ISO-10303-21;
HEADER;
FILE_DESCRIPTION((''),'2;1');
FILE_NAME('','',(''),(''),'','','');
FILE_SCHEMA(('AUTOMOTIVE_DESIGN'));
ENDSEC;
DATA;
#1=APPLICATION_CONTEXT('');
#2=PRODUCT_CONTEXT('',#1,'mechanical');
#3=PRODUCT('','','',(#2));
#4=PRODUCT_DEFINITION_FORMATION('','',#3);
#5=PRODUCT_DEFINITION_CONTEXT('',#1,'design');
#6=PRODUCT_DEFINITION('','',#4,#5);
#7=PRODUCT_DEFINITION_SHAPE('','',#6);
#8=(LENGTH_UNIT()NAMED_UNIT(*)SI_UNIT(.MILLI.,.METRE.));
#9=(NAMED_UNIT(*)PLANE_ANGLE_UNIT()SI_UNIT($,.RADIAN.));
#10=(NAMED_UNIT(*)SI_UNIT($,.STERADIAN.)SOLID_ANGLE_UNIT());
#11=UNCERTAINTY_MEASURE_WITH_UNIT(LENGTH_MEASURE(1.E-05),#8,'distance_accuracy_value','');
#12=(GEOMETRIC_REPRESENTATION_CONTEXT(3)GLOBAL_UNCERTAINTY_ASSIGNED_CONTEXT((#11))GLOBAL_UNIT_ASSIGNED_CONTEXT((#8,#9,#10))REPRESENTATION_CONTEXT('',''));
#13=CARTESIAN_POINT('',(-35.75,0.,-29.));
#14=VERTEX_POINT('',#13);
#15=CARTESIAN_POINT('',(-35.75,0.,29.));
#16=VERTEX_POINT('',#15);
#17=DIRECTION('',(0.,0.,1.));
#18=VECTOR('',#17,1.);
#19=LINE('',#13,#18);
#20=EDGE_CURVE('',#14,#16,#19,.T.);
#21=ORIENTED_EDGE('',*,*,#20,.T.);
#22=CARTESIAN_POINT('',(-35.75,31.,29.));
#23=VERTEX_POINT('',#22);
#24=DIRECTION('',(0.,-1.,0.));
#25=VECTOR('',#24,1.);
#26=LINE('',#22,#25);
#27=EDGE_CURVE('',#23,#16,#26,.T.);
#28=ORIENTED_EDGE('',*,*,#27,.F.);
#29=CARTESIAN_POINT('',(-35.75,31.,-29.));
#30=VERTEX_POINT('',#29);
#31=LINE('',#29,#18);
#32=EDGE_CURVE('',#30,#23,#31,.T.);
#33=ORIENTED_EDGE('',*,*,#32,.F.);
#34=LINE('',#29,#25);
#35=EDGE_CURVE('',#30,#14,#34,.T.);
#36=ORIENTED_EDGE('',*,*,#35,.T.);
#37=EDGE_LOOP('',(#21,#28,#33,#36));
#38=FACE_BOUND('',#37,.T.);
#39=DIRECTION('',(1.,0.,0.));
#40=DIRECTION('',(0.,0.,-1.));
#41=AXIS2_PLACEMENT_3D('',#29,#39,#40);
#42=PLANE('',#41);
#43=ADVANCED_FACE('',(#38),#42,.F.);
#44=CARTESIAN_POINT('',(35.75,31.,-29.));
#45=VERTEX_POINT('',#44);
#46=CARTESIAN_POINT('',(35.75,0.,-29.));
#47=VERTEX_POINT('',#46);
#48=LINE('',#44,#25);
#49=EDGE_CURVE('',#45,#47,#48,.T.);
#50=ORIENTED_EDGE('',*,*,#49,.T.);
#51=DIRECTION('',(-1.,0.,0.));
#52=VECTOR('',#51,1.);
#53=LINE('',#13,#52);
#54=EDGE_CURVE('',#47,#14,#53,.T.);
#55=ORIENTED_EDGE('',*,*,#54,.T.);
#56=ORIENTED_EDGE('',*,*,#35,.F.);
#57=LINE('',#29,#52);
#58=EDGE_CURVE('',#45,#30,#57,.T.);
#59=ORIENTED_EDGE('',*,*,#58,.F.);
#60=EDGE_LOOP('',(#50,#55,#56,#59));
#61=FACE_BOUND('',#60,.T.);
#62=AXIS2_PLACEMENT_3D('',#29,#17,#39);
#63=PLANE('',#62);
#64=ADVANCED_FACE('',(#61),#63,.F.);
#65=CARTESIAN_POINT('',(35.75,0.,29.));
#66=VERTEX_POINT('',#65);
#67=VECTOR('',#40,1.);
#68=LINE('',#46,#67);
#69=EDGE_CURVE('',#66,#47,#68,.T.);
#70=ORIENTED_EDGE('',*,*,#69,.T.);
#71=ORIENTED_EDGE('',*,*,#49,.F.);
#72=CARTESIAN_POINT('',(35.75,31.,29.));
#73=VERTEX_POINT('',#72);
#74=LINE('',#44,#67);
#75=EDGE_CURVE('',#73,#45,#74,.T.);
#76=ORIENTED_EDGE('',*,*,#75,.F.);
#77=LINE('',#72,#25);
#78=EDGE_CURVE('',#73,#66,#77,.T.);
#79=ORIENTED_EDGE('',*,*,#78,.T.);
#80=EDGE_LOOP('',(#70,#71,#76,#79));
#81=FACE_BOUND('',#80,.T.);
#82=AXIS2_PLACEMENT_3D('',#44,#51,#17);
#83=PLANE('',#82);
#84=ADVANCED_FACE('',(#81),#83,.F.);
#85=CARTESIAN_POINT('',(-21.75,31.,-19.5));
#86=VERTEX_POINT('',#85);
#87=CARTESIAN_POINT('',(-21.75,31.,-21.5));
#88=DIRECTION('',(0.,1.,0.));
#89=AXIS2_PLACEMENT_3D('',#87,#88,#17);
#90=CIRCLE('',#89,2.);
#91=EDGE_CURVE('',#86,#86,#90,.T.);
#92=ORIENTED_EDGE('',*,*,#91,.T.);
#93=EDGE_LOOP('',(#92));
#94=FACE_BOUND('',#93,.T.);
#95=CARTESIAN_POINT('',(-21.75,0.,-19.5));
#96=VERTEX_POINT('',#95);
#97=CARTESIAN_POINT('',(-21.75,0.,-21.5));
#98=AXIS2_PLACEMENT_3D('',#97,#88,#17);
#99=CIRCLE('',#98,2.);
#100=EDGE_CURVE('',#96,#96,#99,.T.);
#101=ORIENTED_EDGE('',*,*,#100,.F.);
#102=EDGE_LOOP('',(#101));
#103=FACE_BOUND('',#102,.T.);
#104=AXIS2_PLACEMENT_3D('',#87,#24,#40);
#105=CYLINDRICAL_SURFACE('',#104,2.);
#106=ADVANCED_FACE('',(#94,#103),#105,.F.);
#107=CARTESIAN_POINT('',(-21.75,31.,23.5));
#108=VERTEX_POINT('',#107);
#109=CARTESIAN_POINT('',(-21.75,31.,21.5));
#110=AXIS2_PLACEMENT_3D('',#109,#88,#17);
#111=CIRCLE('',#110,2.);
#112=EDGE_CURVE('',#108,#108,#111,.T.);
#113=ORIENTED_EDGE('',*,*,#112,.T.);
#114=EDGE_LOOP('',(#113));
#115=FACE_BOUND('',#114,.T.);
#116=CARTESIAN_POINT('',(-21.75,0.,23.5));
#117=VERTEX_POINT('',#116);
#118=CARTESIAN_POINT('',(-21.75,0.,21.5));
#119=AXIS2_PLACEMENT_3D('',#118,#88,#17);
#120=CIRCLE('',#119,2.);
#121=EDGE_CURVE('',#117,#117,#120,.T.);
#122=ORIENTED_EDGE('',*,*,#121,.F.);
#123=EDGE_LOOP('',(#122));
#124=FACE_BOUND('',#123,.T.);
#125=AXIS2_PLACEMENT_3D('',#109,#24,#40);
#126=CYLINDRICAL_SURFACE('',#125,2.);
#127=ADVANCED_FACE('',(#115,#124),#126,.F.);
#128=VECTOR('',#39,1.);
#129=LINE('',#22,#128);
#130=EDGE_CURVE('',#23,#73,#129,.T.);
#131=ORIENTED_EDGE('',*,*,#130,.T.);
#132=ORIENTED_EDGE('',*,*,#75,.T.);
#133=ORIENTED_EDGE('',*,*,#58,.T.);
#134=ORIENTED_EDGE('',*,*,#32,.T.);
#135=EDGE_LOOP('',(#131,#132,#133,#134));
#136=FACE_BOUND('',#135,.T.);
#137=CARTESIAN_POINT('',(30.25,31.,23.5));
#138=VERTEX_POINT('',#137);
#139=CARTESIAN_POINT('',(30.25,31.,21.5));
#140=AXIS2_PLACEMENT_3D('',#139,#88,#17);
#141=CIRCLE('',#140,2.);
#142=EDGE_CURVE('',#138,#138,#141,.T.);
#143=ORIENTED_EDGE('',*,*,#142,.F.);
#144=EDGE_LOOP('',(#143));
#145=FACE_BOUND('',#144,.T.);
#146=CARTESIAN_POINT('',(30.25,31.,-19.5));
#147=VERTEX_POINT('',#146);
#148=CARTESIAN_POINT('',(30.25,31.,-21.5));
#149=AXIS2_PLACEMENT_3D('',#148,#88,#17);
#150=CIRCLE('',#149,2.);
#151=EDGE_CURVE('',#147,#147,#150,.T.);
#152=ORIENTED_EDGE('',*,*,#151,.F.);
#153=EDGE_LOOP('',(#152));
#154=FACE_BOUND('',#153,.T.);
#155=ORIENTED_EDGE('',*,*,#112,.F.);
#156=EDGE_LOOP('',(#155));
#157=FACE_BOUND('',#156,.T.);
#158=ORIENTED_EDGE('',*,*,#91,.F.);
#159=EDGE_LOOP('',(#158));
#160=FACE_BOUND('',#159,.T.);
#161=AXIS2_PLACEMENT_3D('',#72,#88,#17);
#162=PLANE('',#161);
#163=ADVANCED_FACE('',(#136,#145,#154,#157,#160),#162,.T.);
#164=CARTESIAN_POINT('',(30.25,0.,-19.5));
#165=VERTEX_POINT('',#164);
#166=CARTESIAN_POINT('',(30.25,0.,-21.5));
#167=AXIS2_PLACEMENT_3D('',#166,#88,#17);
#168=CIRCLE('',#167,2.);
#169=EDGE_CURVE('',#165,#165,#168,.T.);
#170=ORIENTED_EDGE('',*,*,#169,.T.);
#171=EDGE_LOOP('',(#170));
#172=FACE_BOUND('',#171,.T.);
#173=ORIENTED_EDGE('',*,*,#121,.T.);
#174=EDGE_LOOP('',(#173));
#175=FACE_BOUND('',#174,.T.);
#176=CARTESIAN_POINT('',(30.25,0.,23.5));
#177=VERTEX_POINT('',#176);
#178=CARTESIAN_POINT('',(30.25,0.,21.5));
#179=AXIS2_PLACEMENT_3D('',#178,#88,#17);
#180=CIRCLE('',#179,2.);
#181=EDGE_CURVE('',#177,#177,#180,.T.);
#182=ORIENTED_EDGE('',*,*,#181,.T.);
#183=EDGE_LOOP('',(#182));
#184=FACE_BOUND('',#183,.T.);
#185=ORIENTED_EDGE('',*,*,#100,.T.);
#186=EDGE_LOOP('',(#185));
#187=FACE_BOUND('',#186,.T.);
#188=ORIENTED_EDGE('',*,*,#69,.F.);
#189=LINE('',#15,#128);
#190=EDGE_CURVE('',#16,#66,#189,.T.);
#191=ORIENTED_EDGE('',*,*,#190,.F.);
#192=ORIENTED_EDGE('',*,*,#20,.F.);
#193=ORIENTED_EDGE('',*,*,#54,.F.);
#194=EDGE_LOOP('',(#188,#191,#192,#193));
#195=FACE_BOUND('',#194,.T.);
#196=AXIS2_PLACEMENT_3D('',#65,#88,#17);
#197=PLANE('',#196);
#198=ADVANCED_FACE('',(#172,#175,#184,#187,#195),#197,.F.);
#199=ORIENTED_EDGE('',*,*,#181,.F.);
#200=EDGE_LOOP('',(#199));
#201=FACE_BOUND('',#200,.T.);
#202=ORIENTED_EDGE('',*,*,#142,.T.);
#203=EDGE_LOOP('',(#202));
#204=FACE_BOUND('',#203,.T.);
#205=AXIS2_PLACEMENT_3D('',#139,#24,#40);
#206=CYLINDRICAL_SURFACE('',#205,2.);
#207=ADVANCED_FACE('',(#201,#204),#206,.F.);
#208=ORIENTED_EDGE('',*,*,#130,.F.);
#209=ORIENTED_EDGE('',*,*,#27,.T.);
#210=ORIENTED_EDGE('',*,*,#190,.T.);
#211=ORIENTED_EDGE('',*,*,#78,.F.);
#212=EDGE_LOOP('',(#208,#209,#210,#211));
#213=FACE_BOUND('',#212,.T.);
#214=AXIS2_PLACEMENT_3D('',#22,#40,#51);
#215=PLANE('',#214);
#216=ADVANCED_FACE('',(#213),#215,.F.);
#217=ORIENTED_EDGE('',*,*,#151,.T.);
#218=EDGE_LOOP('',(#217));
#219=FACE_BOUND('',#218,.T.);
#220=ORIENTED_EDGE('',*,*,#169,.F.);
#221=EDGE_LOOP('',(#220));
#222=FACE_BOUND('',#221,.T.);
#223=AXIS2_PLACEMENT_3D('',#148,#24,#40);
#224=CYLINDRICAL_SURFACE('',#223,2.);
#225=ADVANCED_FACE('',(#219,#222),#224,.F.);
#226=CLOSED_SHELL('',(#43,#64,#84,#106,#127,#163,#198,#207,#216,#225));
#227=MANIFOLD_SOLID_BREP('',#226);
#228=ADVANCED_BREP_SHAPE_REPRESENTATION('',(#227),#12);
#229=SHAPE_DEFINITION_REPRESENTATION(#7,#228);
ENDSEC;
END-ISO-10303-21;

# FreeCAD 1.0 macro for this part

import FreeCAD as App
import Part
import Sketcher
Q = App.Units.Quantity


def add_polygon(sketch, points):
    """Adds a closed chain of lines whose ends are joined by coincident constraints."""
    first, n = sketch.GeometryCount, len(points)
    for a, b in zip(points, points[1:] + points[:1]):
        sketch.addGeometry(Part.LineSegment(App.Vector(*a, 0), App.Vector(*b, 0)), False)
    for i in range(n):
        sketch.addConstraint(Sketcher.Constraint("Coincident", first + i, 2, first + (i + 1) % n, 1))

doc = App.newDocument("Part")
params = doc.addObject("Spreadsheet::Sheet", "Params")
for row, (alias, value) in enumerate([
    ("sketch1_diameter", "4 mm"),
    ("sketch1_height", "58 mm"),
    ("sketch1_width", "71.5 mm"),
    ("pad1_length", "31 mm"),
], start=1):
    params.set(f"A{row}", alias)
    params.set(f"B{row}", "=" + value)
    params.setAlias(f"B{row}", alias)

body = doc.addObject("PartDesign::Body", "Body")

# Sketch on XZ plane
sketch1 = doc.addObject("Sketcher::SketchObject", "Sketch")
body.addObject(sketch1)
sketch1.AttachmentSupport = (doc.XZ_Plane, [""])
sketch1.MapMode = "FlatFace"
add_polygon(sketch1, [(-35.8, -29), (-35.8, 29), (35.8, 29), (35.8, -29)])  # lines 0-3
sketch1.addGeometry(Part.Circle(App.Vector(-21.8, 21.5, 0), App.Vector(0, 0, 1), 2), False)  # 4
sketch1.addGeometry(Part.Circle(App.Vector(30.2, 21.5, 0), App.Vector(0, 0, 1), 2), False)  # 5
sketch1.addGeometry(Part.Circle(App.Vector(-21.8, -21.5, 0), App.Vector(0, 0, 1), 2), False)  # 6
sketch1.addGeometry(Part.Circle(App.Vector(30.2, -21.5, 0), App.Vector(0, 0, 1), 2), False)  # 7
sketch1.addConstraint([
    Sketcher.Constraint("Vertical", 0),
    Sketcher.Constraint("Horizontal", 1),
    Sketcher.Constraint("Vertical", 2),
    Sketcher.Constraint("Horizontal", 3),
    Sketcher.Constraint("Equal", 4, 5),
    Sketcher.Constraint("Equal", 5, 6),
    Sketcher.Constraint("Equal", 6, 7),
    Sketcher.Constraint("Symmetric", 0, 2, 2, 2, -1, 1),
    Sketcher.Constraint("Symmetric", 4, 3, 6, 3, -1),
    Sketcher.Constraint("Symmetric", 5, 3, 7, 3, -1),
    Sketcher.Constraint("Horizontal", 4, 3, 5, 3),
    Sketcher.Constraint("Diameter", 4, Q("4 mm")),
    Sketcher.Constraint("DistanceY", 0, 1, 0, 2, Q("58 mm")),
    Sketcher.Constraint("DistanceX", 1, 1, 1, 2, Q("71.5 mm")),
    Sketcher.Constraint("DistanceX", 4, 3, 5, 3, Q("52 mm")),
    Sketcher.Constraint("DistanceY", 6, 3, 4, 3, Q("43 mm")),
    Sketcher.Constraint("DistanceX", 0, 2, 4, 3, Q("14 mm")),
])
sketch1.setExpression("Constraints[15]", "Params.sketch1_diameter")
sketch1.setExpression("Constraints[16]", "Params.sketch1_height")
sketch1.setExpression("Constraints[17]", "Params.sketch1_width")
pad1 = doc.addObject("PartDesign::Pad", "Pad")
body.addObject(pad1)
pad1.Profile = sketch1
pad1.setExpression("Length", "Params.pad1_length")
pad1.Reversed = True

doc.recompute()
